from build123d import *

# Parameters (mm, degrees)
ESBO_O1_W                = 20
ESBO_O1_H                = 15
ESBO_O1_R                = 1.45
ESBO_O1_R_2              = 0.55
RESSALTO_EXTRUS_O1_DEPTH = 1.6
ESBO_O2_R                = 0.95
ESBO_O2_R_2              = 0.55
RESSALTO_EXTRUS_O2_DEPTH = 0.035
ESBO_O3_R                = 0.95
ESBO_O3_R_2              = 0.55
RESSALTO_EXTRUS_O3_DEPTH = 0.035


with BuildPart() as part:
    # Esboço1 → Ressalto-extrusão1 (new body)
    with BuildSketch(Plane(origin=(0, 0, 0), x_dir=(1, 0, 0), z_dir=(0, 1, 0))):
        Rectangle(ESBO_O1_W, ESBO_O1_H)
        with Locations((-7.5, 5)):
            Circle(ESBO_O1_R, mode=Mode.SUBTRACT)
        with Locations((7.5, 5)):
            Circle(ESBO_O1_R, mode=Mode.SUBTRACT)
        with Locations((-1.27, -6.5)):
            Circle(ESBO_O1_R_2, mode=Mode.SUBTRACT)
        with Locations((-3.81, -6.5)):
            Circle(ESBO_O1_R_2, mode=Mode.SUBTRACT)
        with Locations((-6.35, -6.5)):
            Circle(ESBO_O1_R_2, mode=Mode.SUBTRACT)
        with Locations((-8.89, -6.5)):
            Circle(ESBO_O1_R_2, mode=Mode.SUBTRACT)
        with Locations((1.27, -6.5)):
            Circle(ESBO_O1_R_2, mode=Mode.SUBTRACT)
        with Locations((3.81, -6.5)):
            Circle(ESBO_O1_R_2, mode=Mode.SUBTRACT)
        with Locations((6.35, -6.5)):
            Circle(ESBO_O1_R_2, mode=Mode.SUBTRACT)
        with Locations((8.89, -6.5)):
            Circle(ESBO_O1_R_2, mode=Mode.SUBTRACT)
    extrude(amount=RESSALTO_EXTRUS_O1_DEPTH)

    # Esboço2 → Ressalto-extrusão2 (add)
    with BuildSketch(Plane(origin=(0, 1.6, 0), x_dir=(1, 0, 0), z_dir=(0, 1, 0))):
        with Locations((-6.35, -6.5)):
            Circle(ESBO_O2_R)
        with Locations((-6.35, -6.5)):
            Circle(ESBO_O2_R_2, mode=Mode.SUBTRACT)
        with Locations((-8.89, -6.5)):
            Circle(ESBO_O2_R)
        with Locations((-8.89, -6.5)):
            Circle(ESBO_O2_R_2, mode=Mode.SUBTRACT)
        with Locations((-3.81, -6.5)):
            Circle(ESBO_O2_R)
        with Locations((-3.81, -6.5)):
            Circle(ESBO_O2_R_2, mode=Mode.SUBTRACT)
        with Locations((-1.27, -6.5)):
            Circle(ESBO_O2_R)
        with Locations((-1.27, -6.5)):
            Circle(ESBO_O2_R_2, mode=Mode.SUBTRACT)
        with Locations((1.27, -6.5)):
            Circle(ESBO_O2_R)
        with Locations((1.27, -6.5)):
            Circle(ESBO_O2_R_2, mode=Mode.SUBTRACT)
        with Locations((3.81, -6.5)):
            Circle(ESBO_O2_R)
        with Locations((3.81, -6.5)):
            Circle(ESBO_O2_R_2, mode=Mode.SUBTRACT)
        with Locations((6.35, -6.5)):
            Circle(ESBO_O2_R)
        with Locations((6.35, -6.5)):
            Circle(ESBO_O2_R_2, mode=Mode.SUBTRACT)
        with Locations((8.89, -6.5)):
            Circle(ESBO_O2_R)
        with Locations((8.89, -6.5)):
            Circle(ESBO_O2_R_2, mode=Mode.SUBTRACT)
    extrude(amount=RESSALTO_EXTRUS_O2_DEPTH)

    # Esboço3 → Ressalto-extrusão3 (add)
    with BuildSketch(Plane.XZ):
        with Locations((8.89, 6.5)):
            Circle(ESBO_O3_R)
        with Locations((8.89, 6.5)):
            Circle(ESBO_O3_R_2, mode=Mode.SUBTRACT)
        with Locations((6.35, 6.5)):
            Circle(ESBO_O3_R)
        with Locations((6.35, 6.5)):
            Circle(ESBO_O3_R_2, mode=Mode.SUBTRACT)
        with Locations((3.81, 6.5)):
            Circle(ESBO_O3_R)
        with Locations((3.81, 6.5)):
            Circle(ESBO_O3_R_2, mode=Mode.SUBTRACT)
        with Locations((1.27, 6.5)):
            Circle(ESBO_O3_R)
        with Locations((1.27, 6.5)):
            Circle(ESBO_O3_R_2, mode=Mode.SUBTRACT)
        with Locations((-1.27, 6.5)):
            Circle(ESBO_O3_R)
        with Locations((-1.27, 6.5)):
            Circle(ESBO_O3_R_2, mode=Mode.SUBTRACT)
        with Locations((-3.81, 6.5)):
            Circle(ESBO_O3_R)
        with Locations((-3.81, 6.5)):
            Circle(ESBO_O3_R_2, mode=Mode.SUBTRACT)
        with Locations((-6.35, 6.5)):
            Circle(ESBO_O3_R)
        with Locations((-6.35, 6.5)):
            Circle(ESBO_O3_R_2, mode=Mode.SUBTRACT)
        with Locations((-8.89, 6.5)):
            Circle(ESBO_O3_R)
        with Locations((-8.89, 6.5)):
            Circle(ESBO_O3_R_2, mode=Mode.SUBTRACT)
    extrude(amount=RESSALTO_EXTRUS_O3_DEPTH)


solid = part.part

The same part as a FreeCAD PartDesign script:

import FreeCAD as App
import Part
import Sketcher
from FreeCAD import Vector


def add_polygon(sketch, points):
    """Adds a closed chain of lines whose ends are joined by coincident constraints."""
    first, n = sketch.GeometryCount, len(points)
    for a, b in zip(points, points[1:] + points[:1]):
        sketch.addGeometry(Part.LineSegment(App.Vector(*a, 0), App.Vector(*b, 0)), False)
    for i in range(n):
        sketch.addConstraint(Sketcher.Constraint("Coincident", first + i, 2, first + (i + 1) % n, 1))

doc = App.newDocument("Part")
params = doc.addObject("Spreadsheet::Sheet", "Params")
for row, (alias, value) in enumerate([
    ("sketch1_diameter", "1.1 mm"),
    ("sketch1_diameter2", "2.9 mm"),
    ("sketch1_width", "20 mm"),
    ("sketch1_height", "15 mm"),
    ("pad1_length", "1.6 mm"),
    ("sketch2_diameter", "1.9 mm"),
    ("sketch2_diameter2", "1.1 mm"),
    ("pad2_length", "0.035 mm"),
    ("sketch3_diameter", "1.9 mm"),
    ("sketch3_diameter2", "1.1 mm"),
    ("pad3_length", "0.035 mm"),
], start=1):
    params.set(f"A{row}", alias)
    params.set(f"B{row}", "=" + value)
    params.setAlias(f"B{row}", alias)

body = doc.addObject("PartDesign::Body", "Body")

# Sketch on XZ plane
sketch1 = doc.addObject("Sketcher::SketchObject", "Sketch")
body.addObject(sketch1)
sketch1.AttachmentSupport = (doc.XZ_Plane, [""])
sketch1.MapMode = "FlatFace"
add_polygon(sketch1, [(-10, -7.5), (-10, 7.5), (10, 7.5), (10, -7.5)])  # lines 0-3
sketch1.addGeometry(Part.Circle(Vector(-8.89, 6.5, 0), Vector(0, 0, 1), 0.55), False)  # 4
sketch1.addGeometry(Part.Circle(Vector(-6.35, 6.5, 0), Vector(0, 0, 1), 0.55), False)  # 5
sketch1.addGeometry(Part.Circle(Vector(-3.81, 6.5, 0), Vector(0, 0, 1), 0.55), False)  # 6
sketch1.addGeometry(Part.Circle(Vector(-1.27, 6.5, 0), Vector(0, 0, 1), 0.55), False)  # 7
sketch1.addGeometry(Part.Circle(Vector(1.27, 6.5, 0), Vector(0, 0, 1), 0.55), False)  # 8
sketch1.addGeometry(Part.Circle(Vector(3.81, 6.5, 0), Vector(0, 0, 1), 0.55), False)  # 9
sketch1.addGeometry(Part.Circle(Vector(6.35, 6.5, 0), Vector(0, 0, 1), 0.55), False)  # 10
sketch1.addGeometry(Part.Circle(Vector(8.89, 6.5, 0), Vector(0, 0, 1), 0.55), False)  # 11
sketch1.addGeometry(Part.Circle(Vector(-7.5, -5, 0), Vector(0, 0, 1), 1.45), False)  # 12
sketch1.addGeometry(Part.Circle(Vector(7.5, -5, 0), Vector(0, 0, 1), 1.45), False)  # 13
sketch1.addConstraint([
    Sketcher.Constraint("Vertical", 0),
    Sketcher.Constraint("Horizontal", 1),
    Sketcher.Constraint("Vertical", 2),
    Sketcher.Constraint("Horizontal", 3),
    Sketcher.Constraint("Equal", 4, 5),
    Sketcher.Constraint("Equal", 5, 6),
    Sketcher.Constraint("Equal", 6, 7),
    Sketcher.Constraint("Equal", 7, 8),
    Sketcher.Constraint("Equal", 8, 9),
    Sketcher.Constraint("Equal", 9, 10),
    Sketcher.Constraint("Equal", 10, 11),
    Sketcher.Constraint("Equal", 12, 13),
    Sketcher.Constraint("Symmetric", 0, 2, 2, 2, -1, 1),
    Sketcher.Constraint("Symmetric", 7, 3, 8, 3, -2),
    Sketcher.Constraint("Symmetric", 6, 3, 9, 3, -2),
    Sketcher.Constraint("Symmetric", 5, 3, 10, 3, -2),
    Sketcher.Constraint("Symmetric", 4, 3, 11, 3, -2),
    Sketcher.Constraint("Symmetric", 12, 3, 13, 3, -2),
    Sketcher.Constraint("Horizontal", 4, 3, 5, 3),
    Sketcher.Constraint("Horizontal", 5, 3, 6, 3),
    Sketcher.Constraint("Horizontal", 6, 3, 7, 3),
    Sketcher.Constraint("Diameter", 4, 1.1),
    Sketcher.Constraint("Diameter", 12, 2.9),
    Sketcher.Constraint("DistanceX", 1, 1, 1, 2, 20.0),
    Sketcher.Constraint("DistanceY", 0, 1, 0, 2, 15.0),
    Sketcher.Constraint("DistanceY", 12, 3, -1, 1, 5.0),
    Sketcher.Constraint("DistanceY", 4, 3, 0, 2, 1.0),
    Sketcher.Constraint("DistanceX", 12, 3, -1, 1, 7.5),
    Sketcher.Constraint("DistanceX", 4, 3, 9, 3, 12.7),
    Sketcher.Constraint("DistanceX", 5, 3, 10, 3, 12.7),
    Sketcher.Constraint("DistanceX", 4, 3, -1, 1, 8.89),
    Sketcher.Constraint("DistanceX", 7, 3, -1, 1, 1.27),
])
sketch1.setExpression("Constraints[25]", "Params.sketch1_diameter")
sketch1.setExpression("Constraints[26]", "Params.sketch1_diameter2")
sketch1.setExpression("Constraints[27]", "Params.sketch1_width")
sketch1.setExpression("Constraints[28]", "Params.sketch1_height")
pad1 = doc.addObject("PartDesign::Pad", "Pad")
body.addObject(pad1)
pad1.Profile = sketch1
pad1.setExpression("Length", "Params.pad1_length")
pad1.Reversed = True

# Sketch on XZ plane
sketch2 = doc.addObject("Sketcher::SketchObject", "Sketch001")
body.addObject(sketch2)
sketch2.AttachmentSupport = (doc.XZ_Plane, [""])
sketch2.MapMode = "FlatFace"
sketch2.AttachmentOffset = App.Placement(Vector(0, 0, -1.6), App.Rotation())
sketch2.addGeometry([
    Part.Circle(Vector(-6.35, 6.5, 0), Vector(0, 0, 1), 0.95),  # 0
    Part.Circle(Vector(-6.35, 6.5, 0), Vector(0, 0, 1), 0.55),  # 1
    Part.Circle(Vector(-8.89, 6.5, 0), Vector(0, 0, 1), 0.95),  # 2
    Part.Circle(Vector(-8.89, 6.5, 0), Vector(0, 0, 1), 0.55),  # 3
    Part.Circle(Vector(-3.81, 6.5, 0), Vector(0, 0, 1), 0.95),  # 4
    Part.Circle(Vector(-3.81, 6.5, 0), Vector(0, 0, 1), 0.55),  # 5
    Part.Circle(Vector(-1.27, 6.5, 0), Vector(0, 0, 1), 0.95),  # 6
    Part.Circle(Vector(-1.27, 6.5, 0), Vector(0, 0, 1), 0.55),  # 7
    Part.Circle(Vector(1.27, 6.5, 0), Vector(0, 0, 1), 0.95),  # 8
    Part.Circle(Vector(1.27, 6.5, 0), Vector(0, 0, 1), 0.55),  # 9
    Part.Circle(Vector(3.81, 6.5, 0), Vector(0, 0, 1), 0.95),  # 10
    Part.Circle(Vector(3.81, 6.5, 0), Vector(0, 0, 1), 0.55),  # 11
    Part.Circle(Vector(6.35, 6.5, 0), Vector(0, 0, 1), 0.95),  # 12
    Part.Circle(Vector(6.35, 6.5, 0), Vector(0, 0, 1), 0.55),  # 13
    Part.Circle(Vector(8.89, 6.5, 0), Vector(0, 0, 1), 0.95),  # 14
    Part.Circle(Vector(8.89, 6.5, 0), Vector(0, 0, 1), 0.55),  # 15
], False)
sketch2.addConstraint([
    Sketcher.Constraint("Coincident", 1, 3, 0, 3),
    Sketcher.Constraint("Coincident", 3, 3, 2, 3),
    Sketcher.Constraint("Coincident", 5, 3, 4, 3),
    Sketcher.Constraint("Coincident", 7, 3, 6, 3),
    Sketcher.Constraint("Coincident", 9, 3, 8, 3),
    Sketcher.Constraint("Coincident", 11, 3, 10, 3),
    Sketcher.Constraint("Coincident", 13, 3, 12, 3),
    Sketcher.Constraint("Coincident", 15, 3, 14, 3),
    Sketcher.Constraint("Equal", 0, 2),
    Sketcher.Constraint("Equal", 1, 3),
    Sketcher.Constraint("Equal", 2, 4),
    Sketcher.Constraint("Equal", 3, 5),
    Sketcher.Constraint("Equal", 4, 6),
    Sketcher.Constraint("Equal", 5, 7),
    Sketcher.Constraint("Equal", 6, 8),
    Sketcher.Constraint("Equal", 7, 9),
    Sketcher.Constraint("Equal", 8, 10),
    Sketcher.Constraint("Equal", 9, 11),
    Sketcher.Constraint("Equal", 10, 12),
    Sketcher.Constraint("Equal", 11, 13),
    Sketcher.Constraint("Equal", 12, 14),
    Sketcher.Constraint("Equal", 13, 15),
    Sketcher.Constraint("Symmetric", 6, 3, 8, 3, -2),
    Sketcher.Constraint("Symmetric", 4, 3, 10, 3, -2),
    Sketcher.Constraint("Symmetric", 0, 3, 12, 3, -2),
    Sketcher.Constraint("Symmetric", 2, 3, 14, 3, -2),
    Sketcher.Constraint("Horizontal", 1, 3, 2, 3),
    Sketcher.Constraint("Horizontal", 3, 3, 4, 3),
    Sketcher.Constraint("Horizontal", 5, 3, 6, 3),
    Sketcher.Constraint("Diameter", 0, 1.9),
    Sketcher.Constraint("Diameter", 1, 1.1),
    Sketcher.Constraint("DistanceY", -1, 1, 0, 3, 6.5),
    Sketcher.Constraint("DistanceX", 0, 3, -1, 1, 6.35),
    Sketcher.Constraint("DistanceX", 2, 3, -1, 1, 8.89),
    Sketcher.Constraint("DistanceX", 4, 3, -1, 1, 3.81),
    Sketcher.Constraint("DistanceX", 6, 3, -1, 1, 1.27),
])
sketch2.setExpression("Constraints[29]", "Params.sketch2_diameter")
sketch2.setExpression("Constraints[30]", "Params.sketch2_diameter2")
pad2 = doc.addObject("PartDesign::Pad", "Pad001")
body.addObject(pad2)
pad2.Profile = sketch2
pad2.setExpression("Length", "Params.pad2_length")
pad2.Reversed = True

# Sketch on XZ plane
sketch3 = doc.addObject("Sketcher::SketchObject", "Sketch002")
body.addObject(sketch3)
sketch3.AttachmentSupport = (doc.XZ_Plane, [""])
sketch3.MapMode = "FlatFace"
sketch3.addGeometry([
    Part.Circle(Vector(8.89, 6.5, 0), Vector(0, 0, 1), 0.95),  # 0
    Part.Circle(Vector(8.89, 6.5, 0), Vector(0, 0, 1), 0.55),  # 1
    Part.Circle(Vector(6.35, 6.5, 0), Vector(0, 0, 1), 0.95),  # 2
    Part.Circle(Vector(6.35, 6.5, 0), Vector(0, 0, 1), 0.55),  # 3
    Part.Circle(Vector(3.81, 6.5, 0), Vector(0, 0, 1), 0.95),  # 4
    Part.Circle(Vector(3.81, 6.5, 0), Vector(0, 0, 1), 0.55),  # 5
    Part.Circle(Vector(1.27, 6.5, 0), Vector(0, 0, 1), 0.95),  # 6
    Part.Circle(Vector(1.27, 6.5, 0), Vector(0, 0, 1), 0.55),  # 7
    Part.Circle(Vector(-1.27, 6.5, 0), Vector(0, 0, 1), 0.95),  # 8
    Part.Circle(Vector(-1.27, 6.5, 0), Vector(0, 0, 1), 0.55),  # 9
    Part.Circle(Vector(-3.81, 6.5, 0), Vector(0, 0, 1), 0.95),  # 10
    Part.Circle(Vector(-3.81, 6.5, 0), Vector(0, 0, 1), 0.55),  # 11
    Part.Circle(Vector(-6.35, 6.5, 0), Vector(0, 0, 1), 0.95),  # 12
    Part.Circle(Vector(-6.35, 6.5, 0), Vector(0, 0, 1), 0.55),  # 13
    Part.Circle(Vector(-8.89, 6.5, 0), Vector(0, 0, 1), 0.95),  # 14
    Part.Circle(Vector(-8.89, 6.5, 0), Vector(0, 0, 1), 0.55),  # 15
], False)
sketch3.addConstraint([
    Sketcher.Constraint("Coincident", 1, 3, 0, 3),
    Sketcher.Constraint("Coincident", 3, 3, 2, 3),
    Sketcher.Constraint("Coincident", 5, 3, 4, 3),
    Sketcher.Constraint("Coincident", 7, 3, 6, 3),
    Sketcher.Constraint("Coincident", 9, 3, 8, 3),
    Sketcher.Constraint("Coincident", 11, 3, 10, 3),
    Sketcher.Constraint("Coincident", 13, 3, 12, 3),
    Sketcher.Constraint("Coincident", 15, 3, 14, 3),
    Sketcher.Constraint("Equal", 0, 2),
    Sketcher.Constraint("Equal", 1, 3),
    Sketcher.Constraint("Equal", 2, 4),
    Sketcher.Constraint("Equal", 3, 5),
    Sketcher.Constraint("Equal", 4, 6),
    Sketcher.Constraint("Equal", 5, 7),
    Sketcher.Constraint("Equal", 6, 8),
    Sketcher.Constraint("Equal", 7, 9),
    Sketcher.Constraint("Equal", 8, 10),
    Sketcher.Constraint("Equal", 9, 11),
    Sketcher.Constraint("Equal", 10, 12),
    Sketcher.Constraint("Equal", 11, 13),
    Sketcher.Constraint("Equal", 12, 14),
    Sketcher.Constraint("Equal", 13, 15),
    Sketcher.Constraint("Symmetric", 6, 3, 8, 3, -2),
    Sketcher.Constraint("Symmetric", 4, 3, 10, 3, -2),
    Sketcher.Constraint("Symmetric", 2, 3, 12, 3, -2),
    Sketcher.Constraint("Symmetric", 0, 3, 14, 3, -2),
    Sketcher.Constraint("Horizontal", 1, 3, 2, 3),
    Sketcher.Constraint("Horizontal", 3, 3, 4, 3),
    Sketcher.Constraint("Horizontal", 5, 3, 6, 3),
    Sketcher.Constraint("Diameter", 0, 1.9),
    Sketcher.Constraint("Diameter", 1, 1.1),
    Sketcher.Constraint("DistanceY", -1, 1, 0, 3, 6.5),
    Sketcher.Constraint("DistanceX", -1, 1, 0, 3, 8.89),
    Sketcher.Constraint("DistanceX", -1, 1, 2, 3, 6.35),
    Sketcher.Constraint("DistanceX", -1, 1, 4, 3, 3.81),
    Sketcher.Constraint("DistanceX", -1, 1, 6, 3, 1.27),
])
sketch3.setExpression("Constraints[29]", "Params.sketch3_diameter")
sketch3.setExpression("Constraints[30]", "Params.sketch3_diameter2")
pad3 = doc.addObject("PartDesign::Pad", "Pad002")
body.addObject(pad3)
pad3.Profile = sketch3
pad3.setExpression("Length", "Params.pad3_length")

doc.recompute()
